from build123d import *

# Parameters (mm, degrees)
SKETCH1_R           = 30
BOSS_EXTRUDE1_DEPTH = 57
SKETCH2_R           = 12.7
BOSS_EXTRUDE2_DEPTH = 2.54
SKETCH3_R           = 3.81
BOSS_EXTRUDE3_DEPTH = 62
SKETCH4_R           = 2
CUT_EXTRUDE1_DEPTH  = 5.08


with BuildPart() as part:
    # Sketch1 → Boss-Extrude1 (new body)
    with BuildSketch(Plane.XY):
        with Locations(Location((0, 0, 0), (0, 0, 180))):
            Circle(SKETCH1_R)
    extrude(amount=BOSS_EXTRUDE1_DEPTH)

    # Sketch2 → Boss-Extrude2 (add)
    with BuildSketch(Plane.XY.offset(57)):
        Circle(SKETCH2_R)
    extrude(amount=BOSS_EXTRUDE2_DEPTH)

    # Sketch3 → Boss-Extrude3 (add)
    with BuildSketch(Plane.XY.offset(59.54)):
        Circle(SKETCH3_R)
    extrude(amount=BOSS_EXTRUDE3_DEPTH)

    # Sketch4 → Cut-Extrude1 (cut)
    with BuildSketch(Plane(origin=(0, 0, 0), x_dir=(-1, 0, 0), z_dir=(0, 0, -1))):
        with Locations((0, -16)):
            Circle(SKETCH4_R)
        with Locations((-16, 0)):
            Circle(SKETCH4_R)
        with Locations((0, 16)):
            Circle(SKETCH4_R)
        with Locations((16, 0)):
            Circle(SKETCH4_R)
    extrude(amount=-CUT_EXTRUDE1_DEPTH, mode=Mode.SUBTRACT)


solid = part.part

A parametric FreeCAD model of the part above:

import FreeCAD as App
import Part
import Sketcher
from FreeCAD import Vector
Q = App.Units.Quantity

doc = App.newDocument("Part")
body = doc.addObject("PartDesign::Body", "Body")

# Sketch on XY plane
sketch1 = body.newObject("Sketcher::SketchObject", "Sketch")
sketch1.AttachmentSupport = (doc.getObject("XY_Plane"), [""])
sketch1.MapMode = "FlatFace"
sketch1.addGeometry(Part.Circle(Vector(0, 0, 0), Vector(0, 0, 1), 30), False)
sketch1.addConstraint([
    Sketcher.Constraint("Coincident", 0, 3, -1, 1),
    Sketcher.Constraint("Diameter", 0, Q("60 mm")),
])
pad1 = body.newObject("PartDesign::Pad", "Pad")
pad1.Profile = sketch1
pad1.Length = 57

# Sketch on XY plane
sketch2 = body.newObject("Sketcher::SketchObject", "Sketch001")
sketch2.AttachmentSupport = (doc.getObject("XY_Plane"), [""])
sketch2.MapMode = "FlatFace"
sketch2.AttachmentOffset = App.Placement(Vector(0, 0, 57), App.Rotation())
sketch2.addGeometry(Part.Circle(Vector(0, 0, 0), Vector(0, 0, 1), 13), False)
sketch2.addConstraint([
    Sketcher.Constraint("Coincident", 0, 3, -1, 1),
    Sketcher.Constraint("Diameter", 0, Q("25.4 mm")),
])
pad2 = body.newObject("PartDesign::Pad", "Pad001")
pad2.Profile = sketch2
pad2.Length = 2.54

# Sketch on XY plane
sketch3 = body.newObject("Sketcher::SketchObject", "Sketch002")
sketch3.AttachmentSupport = (doc.getObject("XY_Plane"), [""])
sketch3.MapMode = "FlatFace"
sketch3.AttachmentOffset = App.Placement(Vector(0, 0, 59.54), App.Rotation())
sketch3.addGeometry(Part.Circle(Vector(0, 0, 0), Vector(0, 0, 1), 3.8), False)
sketch3.addConstraint([
    Sketcher.Constraint("Coincident", 0, 3, -1, 1),
    Sketcher.Constraint("Diameter", 0, Q("7.62 mm")),
])
pad3 = body.newObject("PartDesign::Pad", "Pad002")
pad3.Profile = sketch3
pad3.Length = 62

# Sketch on XY plane
sketch4 = body.newObject("Sketcher::SketchObject", "Sketch003")
sketch4.AttachmentSupport = (doc.getObject("XY_Plane"), [""])
sketch4.MapMode = "FlatFace"
sketch4.addGeometry([
    Part.Circle(Vector(0, -16, 0), Vector(0, 0, 1), 2),
    Part.Circle(Vector(16, 0, 0), Vector(0, 0, 1), 2),
    Part.Circle(Vector(0, 16, 0), Vector(0, 0, 1), 2),
    Part.Circle(Vector(-16, 0, 0), Vector(0, 0, 1), 2),
], False)
sketch4.addConstraint([
    Sketcher.Constraint("Equal", 0, 1),
    Sketcher.Constraint("Equal", 1, 2),
    Sketcher.Constraint("Equal", 2, 3),
    Sketcher.Constraint("Symmetric", 0, 3, 2, 3, -1, 1),
    Sketcher.Constraint("Symmetric", 1, 3, 3, 3, -1, 1),
    Sketcher.Constraint("PointOnObject", 0, 3, -2),
    Sketcher.Constraint("PointOnObject", 1, 3, -1),
    Sketcher.Constraint("Diameter", 0, Q("4 mm")),
    Sketcher.Constraint("DistanceY", 0, 3, -1, 1, Q("16 mm")),
    Sketcher.Constraint("DistanceX", -1, 1, 1, 3, Q("16 mm")),
])
pocket1 = body.newObject("PartDesign::Pocket", "Pocket")
pocket1.Profile = sketch4
pocket1.Length = 5.08
pocket1.Reversed = True

doc.recompute()
